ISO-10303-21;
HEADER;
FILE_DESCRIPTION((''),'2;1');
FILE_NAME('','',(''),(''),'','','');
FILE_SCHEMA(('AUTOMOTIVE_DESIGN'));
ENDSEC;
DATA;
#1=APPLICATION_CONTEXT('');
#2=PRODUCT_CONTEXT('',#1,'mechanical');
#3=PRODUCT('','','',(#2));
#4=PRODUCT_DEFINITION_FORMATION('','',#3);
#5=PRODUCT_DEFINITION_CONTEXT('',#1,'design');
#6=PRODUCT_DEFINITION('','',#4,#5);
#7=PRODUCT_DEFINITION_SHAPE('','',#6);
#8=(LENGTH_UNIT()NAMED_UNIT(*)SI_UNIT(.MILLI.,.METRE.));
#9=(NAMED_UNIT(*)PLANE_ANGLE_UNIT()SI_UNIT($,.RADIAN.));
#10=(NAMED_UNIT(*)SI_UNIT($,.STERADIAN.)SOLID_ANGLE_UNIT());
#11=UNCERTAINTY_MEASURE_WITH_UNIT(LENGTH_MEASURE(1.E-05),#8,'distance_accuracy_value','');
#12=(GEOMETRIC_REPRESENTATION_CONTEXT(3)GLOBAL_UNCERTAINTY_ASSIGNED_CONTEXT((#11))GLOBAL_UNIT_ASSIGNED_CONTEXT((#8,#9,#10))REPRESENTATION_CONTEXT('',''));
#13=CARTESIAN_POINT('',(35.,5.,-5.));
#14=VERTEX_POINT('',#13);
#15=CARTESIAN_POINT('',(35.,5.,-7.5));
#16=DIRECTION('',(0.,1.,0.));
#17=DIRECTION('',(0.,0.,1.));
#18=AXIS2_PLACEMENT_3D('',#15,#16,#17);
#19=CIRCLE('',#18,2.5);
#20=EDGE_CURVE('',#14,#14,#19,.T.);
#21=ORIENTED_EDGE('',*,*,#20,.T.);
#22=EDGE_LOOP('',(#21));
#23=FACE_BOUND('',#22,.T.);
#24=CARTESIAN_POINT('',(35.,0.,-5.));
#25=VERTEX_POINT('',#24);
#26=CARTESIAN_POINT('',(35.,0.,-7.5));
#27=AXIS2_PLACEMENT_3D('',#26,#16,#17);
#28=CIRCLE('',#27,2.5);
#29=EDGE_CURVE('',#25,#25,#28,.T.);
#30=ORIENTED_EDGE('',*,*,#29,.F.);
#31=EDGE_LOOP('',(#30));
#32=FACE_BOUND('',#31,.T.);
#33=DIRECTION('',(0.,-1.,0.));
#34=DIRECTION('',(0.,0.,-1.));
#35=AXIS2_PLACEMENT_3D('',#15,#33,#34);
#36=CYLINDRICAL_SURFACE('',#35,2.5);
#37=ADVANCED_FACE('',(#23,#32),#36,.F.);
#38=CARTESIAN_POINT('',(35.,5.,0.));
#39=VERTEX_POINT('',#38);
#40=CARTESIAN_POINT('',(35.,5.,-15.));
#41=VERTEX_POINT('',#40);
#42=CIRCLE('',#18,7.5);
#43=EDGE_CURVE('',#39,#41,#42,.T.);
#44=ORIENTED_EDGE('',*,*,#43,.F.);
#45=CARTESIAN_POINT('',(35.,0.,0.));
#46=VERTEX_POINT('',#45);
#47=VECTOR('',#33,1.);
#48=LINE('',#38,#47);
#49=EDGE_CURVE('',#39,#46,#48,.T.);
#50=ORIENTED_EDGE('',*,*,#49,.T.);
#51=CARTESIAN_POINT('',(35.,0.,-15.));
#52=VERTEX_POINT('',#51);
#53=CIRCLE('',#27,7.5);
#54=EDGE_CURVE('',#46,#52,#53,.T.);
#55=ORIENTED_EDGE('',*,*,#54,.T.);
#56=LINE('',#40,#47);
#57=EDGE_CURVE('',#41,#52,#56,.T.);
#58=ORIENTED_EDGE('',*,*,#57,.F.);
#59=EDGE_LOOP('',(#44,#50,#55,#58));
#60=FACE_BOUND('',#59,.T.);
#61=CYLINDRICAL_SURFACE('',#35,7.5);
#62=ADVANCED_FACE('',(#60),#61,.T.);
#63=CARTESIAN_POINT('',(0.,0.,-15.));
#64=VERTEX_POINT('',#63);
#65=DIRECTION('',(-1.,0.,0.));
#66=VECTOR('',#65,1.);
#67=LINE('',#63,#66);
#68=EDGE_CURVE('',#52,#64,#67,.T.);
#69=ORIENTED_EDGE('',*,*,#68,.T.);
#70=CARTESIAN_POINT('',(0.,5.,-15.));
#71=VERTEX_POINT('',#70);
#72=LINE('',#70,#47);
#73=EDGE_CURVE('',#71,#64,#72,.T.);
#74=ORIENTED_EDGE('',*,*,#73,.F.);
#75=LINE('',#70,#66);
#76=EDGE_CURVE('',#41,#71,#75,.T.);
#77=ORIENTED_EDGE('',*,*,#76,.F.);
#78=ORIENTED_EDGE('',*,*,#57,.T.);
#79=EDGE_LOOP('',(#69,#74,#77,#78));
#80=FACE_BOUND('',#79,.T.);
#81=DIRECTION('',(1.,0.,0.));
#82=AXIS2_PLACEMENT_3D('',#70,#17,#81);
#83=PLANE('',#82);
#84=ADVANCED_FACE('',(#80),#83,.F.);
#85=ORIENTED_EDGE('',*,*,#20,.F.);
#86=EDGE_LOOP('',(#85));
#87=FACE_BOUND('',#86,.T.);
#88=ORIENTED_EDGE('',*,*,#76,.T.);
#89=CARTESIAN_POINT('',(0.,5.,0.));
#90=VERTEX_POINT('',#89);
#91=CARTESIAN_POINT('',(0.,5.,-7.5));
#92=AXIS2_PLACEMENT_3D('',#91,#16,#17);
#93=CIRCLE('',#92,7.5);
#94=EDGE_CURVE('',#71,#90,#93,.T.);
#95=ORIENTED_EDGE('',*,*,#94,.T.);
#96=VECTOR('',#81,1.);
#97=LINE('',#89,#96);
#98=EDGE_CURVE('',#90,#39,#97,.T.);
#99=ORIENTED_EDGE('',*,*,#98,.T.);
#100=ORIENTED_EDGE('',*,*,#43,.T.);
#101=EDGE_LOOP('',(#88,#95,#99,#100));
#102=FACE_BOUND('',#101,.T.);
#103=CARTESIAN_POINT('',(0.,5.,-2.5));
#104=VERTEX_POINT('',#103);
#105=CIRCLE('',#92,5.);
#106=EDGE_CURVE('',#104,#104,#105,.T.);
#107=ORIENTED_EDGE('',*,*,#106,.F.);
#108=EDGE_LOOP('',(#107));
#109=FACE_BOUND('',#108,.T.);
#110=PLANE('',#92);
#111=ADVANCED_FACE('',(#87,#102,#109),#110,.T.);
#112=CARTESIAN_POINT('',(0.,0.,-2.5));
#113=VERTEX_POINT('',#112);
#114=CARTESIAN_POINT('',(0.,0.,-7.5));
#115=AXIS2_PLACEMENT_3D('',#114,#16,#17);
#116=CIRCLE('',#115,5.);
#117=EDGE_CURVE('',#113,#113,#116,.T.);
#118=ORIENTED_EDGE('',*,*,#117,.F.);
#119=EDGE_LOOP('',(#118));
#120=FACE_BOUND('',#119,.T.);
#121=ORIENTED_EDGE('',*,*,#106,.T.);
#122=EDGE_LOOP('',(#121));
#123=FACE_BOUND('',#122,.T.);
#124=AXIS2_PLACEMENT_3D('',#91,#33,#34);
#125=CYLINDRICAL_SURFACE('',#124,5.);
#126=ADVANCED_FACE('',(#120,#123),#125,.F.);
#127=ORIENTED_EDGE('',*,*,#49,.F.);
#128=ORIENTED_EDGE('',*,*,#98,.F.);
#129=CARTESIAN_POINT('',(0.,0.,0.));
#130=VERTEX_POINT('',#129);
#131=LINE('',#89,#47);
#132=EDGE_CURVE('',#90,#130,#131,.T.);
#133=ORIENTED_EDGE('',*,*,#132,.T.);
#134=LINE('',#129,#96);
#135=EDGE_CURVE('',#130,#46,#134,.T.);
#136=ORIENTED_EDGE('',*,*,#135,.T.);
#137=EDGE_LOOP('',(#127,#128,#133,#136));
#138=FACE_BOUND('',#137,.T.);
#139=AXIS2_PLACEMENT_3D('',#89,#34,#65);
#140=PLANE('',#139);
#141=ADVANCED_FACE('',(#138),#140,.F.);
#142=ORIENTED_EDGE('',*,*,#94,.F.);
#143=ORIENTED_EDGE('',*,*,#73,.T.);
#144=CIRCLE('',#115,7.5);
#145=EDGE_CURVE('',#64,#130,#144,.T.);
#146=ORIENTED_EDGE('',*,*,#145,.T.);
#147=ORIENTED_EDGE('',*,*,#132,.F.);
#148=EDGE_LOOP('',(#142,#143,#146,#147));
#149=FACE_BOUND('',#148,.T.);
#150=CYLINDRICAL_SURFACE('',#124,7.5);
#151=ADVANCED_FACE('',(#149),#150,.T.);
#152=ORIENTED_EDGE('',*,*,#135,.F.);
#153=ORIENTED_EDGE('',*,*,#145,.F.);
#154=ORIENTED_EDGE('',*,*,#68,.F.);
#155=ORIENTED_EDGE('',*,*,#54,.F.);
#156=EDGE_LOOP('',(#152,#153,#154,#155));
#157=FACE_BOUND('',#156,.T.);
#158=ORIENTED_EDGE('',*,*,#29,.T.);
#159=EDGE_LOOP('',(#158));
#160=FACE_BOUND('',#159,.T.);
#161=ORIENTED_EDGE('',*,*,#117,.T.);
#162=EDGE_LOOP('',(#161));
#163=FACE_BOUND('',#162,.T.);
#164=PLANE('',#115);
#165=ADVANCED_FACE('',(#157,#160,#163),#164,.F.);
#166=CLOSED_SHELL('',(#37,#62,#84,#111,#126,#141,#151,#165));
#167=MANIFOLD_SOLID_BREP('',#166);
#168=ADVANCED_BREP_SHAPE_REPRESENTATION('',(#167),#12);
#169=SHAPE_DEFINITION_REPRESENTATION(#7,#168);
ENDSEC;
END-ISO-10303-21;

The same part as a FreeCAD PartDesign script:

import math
import FreeCAD as App
import Part
import Sketcher
from FreeCAD import Vector
Q = App.Units.Quantity

doc = App.newDocument("Part")
body = doc.addObject("PartDesign::Body", "Body")

# Sketch on XZ plane
sketch1 = body.newObject("Sketcher::SketchObject", "Sketch")
sketch1.AttachmentSupport = (doc.getObject("XZ_Plane"), [""])
sketch1.MapMode = "FlatFace"
sketch1.addGeometry([
    Part.LineSegment(Vector(0, 0, 0), Vector(35, 0, 0)),  # 0
    Part.ArcOfCircle(Part.Circle(Vector(35, -7.5, 0), Vector(0, 0, 1), 7.5), math.radians(-90), math.radians(90)),  # 1
    Part.LineSegment(Vector(35, -15, 0), Vector(0, -15, 0)),  # 2
    Part.ArcOfCircle(Part.Circle(Vector(0, -7.5, 0), Vector(0, 0, 1), 7.5), math.radians(90), math.radians(270)),  # 3
    Part.Circle(Vector(0, -7.5, 0), Vector(0, 0, 1), 5),  # 4
    Part.Circle(Vector(35, -7.5, 0), Vector(0, 0, 1), 2.5),  # 5
], False)
sketch1.addConstraint([
    Sketcher.Constraint("Tangent", 0, 2, 1, 2),
    Sketcher.Constraint("Tangent", 1, 1, 2, 1),
    Sketcher.Constraint("Tangent", 2, 2, 3, 2),
    Sketcher.Constraint("Tangent", 3, 1, 0, 1),
    Sketcher.Constraint("Horizontal", 0),
    Sketcher.Constraint("Horizontal", 2),
    Sketcher.Constraint("Coincident", 3, 1, -1, 1),
    Sketcher.Constraint("Coincident", 4, 3, 3, 3),
    Sketcher.Constraint("Coincident", 5, 3, 1, 3),
    Sketcher.Constraint("Diameter", 4, Q("10 mm")),
    Sketcher.Constraint("Diameter", 5, Q("5 mm")),
    Sketcher.Constraint("Radius", 1, Q("7.5 mm")),
    Sketcher.Constraint("DistanceX", 0, 1, 0, 2, Q("35 mm")),
])
pad1 = body.newObject("PartDesign::Pad", "Pad")
pad1.Profile = sketch1
pad1.Length = 5
pad1.Reversed = True

doc.recompute()
